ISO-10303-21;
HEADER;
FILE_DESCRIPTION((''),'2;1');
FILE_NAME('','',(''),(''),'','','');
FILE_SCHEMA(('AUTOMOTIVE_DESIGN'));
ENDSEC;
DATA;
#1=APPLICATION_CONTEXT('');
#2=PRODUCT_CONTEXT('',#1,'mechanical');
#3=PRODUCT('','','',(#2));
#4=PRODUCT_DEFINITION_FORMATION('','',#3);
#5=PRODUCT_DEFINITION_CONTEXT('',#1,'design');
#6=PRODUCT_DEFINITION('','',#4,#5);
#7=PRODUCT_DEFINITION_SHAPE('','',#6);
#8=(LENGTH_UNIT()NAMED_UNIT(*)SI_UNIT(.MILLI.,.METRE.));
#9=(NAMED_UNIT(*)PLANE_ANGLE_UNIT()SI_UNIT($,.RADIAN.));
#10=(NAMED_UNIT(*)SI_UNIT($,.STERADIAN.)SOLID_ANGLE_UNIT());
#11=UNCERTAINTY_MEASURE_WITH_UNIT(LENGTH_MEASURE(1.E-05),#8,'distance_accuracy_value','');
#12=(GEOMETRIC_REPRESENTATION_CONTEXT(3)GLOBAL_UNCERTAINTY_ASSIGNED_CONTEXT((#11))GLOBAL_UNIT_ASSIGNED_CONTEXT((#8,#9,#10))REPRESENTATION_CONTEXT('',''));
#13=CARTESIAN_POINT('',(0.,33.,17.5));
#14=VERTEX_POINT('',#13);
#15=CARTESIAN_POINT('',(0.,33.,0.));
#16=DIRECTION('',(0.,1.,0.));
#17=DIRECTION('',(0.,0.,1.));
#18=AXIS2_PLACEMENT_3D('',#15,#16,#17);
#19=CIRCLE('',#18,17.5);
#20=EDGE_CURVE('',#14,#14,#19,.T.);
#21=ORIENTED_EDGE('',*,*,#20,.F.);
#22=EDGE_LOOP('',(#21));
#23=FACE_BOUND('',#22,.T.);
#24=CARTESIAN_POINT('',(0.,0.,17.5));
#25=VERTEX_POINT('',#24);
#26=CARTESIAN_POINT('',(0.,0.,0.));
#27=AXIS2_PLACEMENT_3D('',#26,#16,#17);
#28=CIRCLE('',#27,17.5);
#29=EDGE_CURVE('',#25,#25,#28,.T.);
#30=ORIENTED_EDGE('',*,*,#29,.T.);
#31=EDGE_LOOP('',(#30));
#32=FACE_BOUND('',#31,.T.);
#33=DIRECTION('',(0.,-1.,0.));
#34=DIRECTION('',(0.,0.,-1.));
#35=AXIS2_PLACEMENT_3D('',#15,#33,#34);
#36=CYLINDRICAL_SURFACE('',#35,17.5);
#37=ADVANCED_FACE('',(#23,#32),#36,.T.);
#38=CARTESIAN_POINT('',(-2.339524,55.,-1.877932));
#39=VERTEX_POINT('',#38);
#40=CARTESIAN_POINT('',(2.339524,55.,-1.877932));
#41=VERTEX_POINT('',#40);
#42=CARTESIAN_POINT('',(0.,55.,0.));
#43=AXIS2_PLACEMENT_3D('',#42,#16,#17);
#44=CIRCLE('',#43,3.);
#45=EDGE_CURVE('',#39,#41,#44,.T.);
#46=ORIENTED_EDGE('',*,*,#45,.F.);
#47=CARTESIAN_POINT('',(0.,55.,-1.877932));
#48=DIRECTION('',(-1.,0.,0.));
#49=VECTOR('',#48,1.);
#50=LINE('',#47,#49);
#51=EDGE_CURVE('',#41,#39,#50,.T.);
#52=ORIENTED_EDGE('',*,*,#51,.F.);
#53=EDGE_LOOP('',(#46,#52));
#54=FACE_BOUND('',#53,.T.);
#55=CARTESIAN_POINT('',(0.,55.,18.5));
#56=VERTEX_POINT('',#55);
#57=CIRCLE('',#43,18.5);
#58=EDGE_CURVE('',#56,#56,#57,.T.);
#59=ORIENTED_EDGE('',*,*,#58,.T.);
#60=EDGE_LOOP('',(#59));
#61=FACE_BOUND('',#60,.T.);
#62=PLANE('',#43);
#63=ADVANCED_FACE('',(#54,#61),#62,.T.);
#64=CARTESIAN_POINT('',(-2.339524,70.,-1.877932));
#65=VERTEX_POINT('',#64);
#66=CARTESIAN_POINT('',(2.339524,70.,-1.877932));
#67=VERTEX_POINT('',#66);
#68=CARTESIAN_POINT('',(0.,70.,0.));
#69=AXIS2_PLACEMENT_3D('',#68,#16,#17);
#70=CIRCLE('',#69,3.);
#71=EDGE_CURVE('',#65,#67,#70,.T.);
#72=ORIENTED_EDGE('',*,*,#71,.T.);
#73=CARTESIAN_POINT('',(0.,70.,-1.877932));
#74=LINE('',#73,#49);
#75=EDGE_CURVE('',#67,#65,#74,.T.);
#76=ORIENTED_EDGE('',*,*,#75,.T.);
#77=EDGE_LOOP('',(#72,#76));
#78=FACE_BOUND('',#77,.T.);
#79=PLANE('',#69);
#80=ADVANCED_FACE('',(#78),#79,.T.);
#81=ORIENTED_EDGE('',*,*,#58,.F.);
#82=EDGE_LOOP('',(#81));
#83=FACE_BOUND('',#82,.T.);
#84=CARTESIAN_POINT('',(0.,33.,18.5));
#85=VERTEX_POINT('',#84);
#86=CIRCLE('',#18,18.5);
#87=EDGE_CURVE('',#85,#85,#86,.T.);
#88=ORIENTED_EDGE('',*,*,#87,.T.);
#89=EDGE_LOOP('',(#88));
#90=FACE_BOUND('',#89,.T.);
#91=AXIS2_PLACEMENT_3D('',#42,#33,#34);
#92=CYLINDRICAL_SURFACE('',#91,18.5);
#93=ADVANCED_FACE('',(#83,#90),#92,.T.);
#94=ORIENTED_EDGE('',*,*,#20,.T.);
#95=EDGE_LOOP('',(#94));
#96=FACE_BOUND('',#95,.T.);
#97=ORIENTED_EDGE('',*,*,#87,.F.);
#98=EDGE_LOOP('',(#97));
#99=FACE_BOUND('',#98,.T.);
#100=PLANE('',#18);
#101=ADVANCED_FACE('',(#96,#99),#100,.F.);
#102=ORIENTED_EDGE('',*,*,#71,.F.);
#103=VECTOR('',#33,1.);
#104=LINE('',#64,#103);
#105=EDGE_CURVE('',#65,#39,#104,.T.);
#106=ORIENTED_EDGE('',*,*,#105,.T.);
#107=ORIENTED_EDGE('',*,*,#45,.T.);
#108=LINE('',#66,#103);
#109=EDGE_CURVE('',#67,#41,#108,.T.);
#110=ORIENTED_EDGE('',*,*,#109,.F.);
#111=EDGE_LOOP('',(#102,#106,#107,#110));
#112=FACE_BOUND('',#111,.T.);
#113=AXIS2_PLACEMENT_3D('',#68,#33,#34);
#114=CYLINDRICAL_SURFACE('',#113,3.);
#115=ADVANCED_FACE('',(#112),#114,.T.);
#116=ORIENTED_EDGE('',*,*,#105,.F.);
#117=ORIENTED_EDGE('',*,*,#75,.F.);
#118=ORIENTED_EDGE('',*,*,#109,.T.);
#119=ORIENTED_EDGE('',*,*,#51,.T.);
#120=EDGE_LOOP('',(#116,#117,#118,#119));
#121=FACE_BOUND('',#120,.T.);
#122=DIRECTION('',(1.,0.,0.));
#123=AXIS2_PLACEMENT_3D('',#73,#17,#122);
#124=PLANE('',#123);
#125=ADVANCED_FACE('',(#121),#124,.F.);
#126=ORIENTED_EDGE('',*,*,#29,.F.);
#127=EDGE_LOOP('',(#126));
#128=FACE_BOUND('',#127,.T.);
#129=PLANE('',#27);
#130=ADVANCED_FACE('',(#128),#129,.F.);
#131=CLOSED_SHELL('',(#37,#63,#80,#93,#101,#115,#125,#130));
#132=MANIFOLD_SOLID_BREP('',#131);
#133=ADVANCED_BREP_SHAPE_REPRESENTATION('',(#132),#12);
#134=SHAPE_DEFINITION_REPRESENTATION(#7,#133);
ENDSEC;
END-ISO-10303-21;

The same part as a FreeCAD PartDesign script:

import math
import FreeCAD as App
import Part
import Sketcher

V = App.Vector
Q = App.Units.Quantity

doc = App.newDocument("Part")
body = doc.addObject("PartDesign::Body", "Body")

# Sketch on XZ plane
sketch1 = body.newObject("Sketcher::SketchObject", "Sketch")
sketch1.AttachmentSupport = (doc.getObject("XZ_Plane"), [""])
sketch1.MapMode = "FlatFace"
sketch1.addGeometry(Part.Circle(V(0, 0, 0), V(0, 0, 1), 18), False)
sketch1.addConstraint([
    Sketcher.Constraint("Coincident", 0, 3, -1, 1),
    Sketcher.Constraint("Diameter", 0, Q("35 mm")),
])
pad1 = body.newObject("PartDesign::Pad", "Pad")
pad1.Profile = sketch1
pad1.Length = 33
pad1.Reversed = True

# Sketch on XZ plane
sketch2 = body.newObject("Sketcher::SketchObject", "Sketch001")
sketch2.AttachmentSupport = (doc.getObject("XZ_Plane"), [""])
sketch2.MapMode = "FlatFace"
sketch2.AttachmentOffset = App.Placement(V(0, 0, -33), App.Rotation())
sketch2.addGeometry(Part.Circle(V(0, 0, 0), V(0, 0, 1), 18), False)
sketch2.addConstraint([
    Sketcher.Constraint("Coincident", 0, 3, -1, 1),
    Sketcher.Constraint("Diameter", 0, Q("37 mm")),
])
pad2 = body.newObject("PartDesign::Pad", "Pad001")
pad2.Profile = sketch2
pad2.Length = 22
pad2.Reversed = True

# Sketch on XZ plane
sketch3 = body.newObject("Sketcher::SketchObject", "Sketch002")
sketch3.AttachmentSupport = (doc.getObject("XZ_Plane"), [""])
sketch3.MapMode = "FlatFace"
sketch3.AttachmentOffset = App.Placement(V(0, 0, -55), App.Rotation())
sketch3.addGeometry([
    Part.LineSegment(V(2.3, -1.9, 0), V(-2.3, -1.9, 0)),
    Part.ArcOfCircle(Part.Circle(V(0, 0, 0), V(0, 0, 1), 3), math.radians(0), math.radians(219)),
    Part.ArcOfCircle(Part.Circle(V(0, 0, 0), V(0, 0, 1), 3), math.radians(-39), math.radians(0)),
], False)
sketch3.addConstraint([
    Sketcher.Constraint("Coincident", 0, 2, 1, 2),
    Sketcher.Constraint("Tangent", 1, 1, 2, 2),
    Sketcher.Constraint("Coincident", 2, 1, 0, 1),
    Sketcher.Constraint("Horizontal", 0),
    Sketcher.Constraint("Coincident", 1, 3, -1, 1),
    Sketcher.Constraint("Equal", 1, 2),
    Sketcher.Constraint("PointOnObject", 1, 1, -1),
    Sketcher.Constraint("Radius", 1, Q("3 mm")),
    Sketcher.Constraint("DistanceX", 0, 2, 0, 1, Q("4.679047 mm")),
])
pad3 = body.newObject("PartDesign::Pad", "Pad002")
pad3.Profile = sketch3
pad3.Length = 15
pad3.Reversed = True

doc.recompute()
